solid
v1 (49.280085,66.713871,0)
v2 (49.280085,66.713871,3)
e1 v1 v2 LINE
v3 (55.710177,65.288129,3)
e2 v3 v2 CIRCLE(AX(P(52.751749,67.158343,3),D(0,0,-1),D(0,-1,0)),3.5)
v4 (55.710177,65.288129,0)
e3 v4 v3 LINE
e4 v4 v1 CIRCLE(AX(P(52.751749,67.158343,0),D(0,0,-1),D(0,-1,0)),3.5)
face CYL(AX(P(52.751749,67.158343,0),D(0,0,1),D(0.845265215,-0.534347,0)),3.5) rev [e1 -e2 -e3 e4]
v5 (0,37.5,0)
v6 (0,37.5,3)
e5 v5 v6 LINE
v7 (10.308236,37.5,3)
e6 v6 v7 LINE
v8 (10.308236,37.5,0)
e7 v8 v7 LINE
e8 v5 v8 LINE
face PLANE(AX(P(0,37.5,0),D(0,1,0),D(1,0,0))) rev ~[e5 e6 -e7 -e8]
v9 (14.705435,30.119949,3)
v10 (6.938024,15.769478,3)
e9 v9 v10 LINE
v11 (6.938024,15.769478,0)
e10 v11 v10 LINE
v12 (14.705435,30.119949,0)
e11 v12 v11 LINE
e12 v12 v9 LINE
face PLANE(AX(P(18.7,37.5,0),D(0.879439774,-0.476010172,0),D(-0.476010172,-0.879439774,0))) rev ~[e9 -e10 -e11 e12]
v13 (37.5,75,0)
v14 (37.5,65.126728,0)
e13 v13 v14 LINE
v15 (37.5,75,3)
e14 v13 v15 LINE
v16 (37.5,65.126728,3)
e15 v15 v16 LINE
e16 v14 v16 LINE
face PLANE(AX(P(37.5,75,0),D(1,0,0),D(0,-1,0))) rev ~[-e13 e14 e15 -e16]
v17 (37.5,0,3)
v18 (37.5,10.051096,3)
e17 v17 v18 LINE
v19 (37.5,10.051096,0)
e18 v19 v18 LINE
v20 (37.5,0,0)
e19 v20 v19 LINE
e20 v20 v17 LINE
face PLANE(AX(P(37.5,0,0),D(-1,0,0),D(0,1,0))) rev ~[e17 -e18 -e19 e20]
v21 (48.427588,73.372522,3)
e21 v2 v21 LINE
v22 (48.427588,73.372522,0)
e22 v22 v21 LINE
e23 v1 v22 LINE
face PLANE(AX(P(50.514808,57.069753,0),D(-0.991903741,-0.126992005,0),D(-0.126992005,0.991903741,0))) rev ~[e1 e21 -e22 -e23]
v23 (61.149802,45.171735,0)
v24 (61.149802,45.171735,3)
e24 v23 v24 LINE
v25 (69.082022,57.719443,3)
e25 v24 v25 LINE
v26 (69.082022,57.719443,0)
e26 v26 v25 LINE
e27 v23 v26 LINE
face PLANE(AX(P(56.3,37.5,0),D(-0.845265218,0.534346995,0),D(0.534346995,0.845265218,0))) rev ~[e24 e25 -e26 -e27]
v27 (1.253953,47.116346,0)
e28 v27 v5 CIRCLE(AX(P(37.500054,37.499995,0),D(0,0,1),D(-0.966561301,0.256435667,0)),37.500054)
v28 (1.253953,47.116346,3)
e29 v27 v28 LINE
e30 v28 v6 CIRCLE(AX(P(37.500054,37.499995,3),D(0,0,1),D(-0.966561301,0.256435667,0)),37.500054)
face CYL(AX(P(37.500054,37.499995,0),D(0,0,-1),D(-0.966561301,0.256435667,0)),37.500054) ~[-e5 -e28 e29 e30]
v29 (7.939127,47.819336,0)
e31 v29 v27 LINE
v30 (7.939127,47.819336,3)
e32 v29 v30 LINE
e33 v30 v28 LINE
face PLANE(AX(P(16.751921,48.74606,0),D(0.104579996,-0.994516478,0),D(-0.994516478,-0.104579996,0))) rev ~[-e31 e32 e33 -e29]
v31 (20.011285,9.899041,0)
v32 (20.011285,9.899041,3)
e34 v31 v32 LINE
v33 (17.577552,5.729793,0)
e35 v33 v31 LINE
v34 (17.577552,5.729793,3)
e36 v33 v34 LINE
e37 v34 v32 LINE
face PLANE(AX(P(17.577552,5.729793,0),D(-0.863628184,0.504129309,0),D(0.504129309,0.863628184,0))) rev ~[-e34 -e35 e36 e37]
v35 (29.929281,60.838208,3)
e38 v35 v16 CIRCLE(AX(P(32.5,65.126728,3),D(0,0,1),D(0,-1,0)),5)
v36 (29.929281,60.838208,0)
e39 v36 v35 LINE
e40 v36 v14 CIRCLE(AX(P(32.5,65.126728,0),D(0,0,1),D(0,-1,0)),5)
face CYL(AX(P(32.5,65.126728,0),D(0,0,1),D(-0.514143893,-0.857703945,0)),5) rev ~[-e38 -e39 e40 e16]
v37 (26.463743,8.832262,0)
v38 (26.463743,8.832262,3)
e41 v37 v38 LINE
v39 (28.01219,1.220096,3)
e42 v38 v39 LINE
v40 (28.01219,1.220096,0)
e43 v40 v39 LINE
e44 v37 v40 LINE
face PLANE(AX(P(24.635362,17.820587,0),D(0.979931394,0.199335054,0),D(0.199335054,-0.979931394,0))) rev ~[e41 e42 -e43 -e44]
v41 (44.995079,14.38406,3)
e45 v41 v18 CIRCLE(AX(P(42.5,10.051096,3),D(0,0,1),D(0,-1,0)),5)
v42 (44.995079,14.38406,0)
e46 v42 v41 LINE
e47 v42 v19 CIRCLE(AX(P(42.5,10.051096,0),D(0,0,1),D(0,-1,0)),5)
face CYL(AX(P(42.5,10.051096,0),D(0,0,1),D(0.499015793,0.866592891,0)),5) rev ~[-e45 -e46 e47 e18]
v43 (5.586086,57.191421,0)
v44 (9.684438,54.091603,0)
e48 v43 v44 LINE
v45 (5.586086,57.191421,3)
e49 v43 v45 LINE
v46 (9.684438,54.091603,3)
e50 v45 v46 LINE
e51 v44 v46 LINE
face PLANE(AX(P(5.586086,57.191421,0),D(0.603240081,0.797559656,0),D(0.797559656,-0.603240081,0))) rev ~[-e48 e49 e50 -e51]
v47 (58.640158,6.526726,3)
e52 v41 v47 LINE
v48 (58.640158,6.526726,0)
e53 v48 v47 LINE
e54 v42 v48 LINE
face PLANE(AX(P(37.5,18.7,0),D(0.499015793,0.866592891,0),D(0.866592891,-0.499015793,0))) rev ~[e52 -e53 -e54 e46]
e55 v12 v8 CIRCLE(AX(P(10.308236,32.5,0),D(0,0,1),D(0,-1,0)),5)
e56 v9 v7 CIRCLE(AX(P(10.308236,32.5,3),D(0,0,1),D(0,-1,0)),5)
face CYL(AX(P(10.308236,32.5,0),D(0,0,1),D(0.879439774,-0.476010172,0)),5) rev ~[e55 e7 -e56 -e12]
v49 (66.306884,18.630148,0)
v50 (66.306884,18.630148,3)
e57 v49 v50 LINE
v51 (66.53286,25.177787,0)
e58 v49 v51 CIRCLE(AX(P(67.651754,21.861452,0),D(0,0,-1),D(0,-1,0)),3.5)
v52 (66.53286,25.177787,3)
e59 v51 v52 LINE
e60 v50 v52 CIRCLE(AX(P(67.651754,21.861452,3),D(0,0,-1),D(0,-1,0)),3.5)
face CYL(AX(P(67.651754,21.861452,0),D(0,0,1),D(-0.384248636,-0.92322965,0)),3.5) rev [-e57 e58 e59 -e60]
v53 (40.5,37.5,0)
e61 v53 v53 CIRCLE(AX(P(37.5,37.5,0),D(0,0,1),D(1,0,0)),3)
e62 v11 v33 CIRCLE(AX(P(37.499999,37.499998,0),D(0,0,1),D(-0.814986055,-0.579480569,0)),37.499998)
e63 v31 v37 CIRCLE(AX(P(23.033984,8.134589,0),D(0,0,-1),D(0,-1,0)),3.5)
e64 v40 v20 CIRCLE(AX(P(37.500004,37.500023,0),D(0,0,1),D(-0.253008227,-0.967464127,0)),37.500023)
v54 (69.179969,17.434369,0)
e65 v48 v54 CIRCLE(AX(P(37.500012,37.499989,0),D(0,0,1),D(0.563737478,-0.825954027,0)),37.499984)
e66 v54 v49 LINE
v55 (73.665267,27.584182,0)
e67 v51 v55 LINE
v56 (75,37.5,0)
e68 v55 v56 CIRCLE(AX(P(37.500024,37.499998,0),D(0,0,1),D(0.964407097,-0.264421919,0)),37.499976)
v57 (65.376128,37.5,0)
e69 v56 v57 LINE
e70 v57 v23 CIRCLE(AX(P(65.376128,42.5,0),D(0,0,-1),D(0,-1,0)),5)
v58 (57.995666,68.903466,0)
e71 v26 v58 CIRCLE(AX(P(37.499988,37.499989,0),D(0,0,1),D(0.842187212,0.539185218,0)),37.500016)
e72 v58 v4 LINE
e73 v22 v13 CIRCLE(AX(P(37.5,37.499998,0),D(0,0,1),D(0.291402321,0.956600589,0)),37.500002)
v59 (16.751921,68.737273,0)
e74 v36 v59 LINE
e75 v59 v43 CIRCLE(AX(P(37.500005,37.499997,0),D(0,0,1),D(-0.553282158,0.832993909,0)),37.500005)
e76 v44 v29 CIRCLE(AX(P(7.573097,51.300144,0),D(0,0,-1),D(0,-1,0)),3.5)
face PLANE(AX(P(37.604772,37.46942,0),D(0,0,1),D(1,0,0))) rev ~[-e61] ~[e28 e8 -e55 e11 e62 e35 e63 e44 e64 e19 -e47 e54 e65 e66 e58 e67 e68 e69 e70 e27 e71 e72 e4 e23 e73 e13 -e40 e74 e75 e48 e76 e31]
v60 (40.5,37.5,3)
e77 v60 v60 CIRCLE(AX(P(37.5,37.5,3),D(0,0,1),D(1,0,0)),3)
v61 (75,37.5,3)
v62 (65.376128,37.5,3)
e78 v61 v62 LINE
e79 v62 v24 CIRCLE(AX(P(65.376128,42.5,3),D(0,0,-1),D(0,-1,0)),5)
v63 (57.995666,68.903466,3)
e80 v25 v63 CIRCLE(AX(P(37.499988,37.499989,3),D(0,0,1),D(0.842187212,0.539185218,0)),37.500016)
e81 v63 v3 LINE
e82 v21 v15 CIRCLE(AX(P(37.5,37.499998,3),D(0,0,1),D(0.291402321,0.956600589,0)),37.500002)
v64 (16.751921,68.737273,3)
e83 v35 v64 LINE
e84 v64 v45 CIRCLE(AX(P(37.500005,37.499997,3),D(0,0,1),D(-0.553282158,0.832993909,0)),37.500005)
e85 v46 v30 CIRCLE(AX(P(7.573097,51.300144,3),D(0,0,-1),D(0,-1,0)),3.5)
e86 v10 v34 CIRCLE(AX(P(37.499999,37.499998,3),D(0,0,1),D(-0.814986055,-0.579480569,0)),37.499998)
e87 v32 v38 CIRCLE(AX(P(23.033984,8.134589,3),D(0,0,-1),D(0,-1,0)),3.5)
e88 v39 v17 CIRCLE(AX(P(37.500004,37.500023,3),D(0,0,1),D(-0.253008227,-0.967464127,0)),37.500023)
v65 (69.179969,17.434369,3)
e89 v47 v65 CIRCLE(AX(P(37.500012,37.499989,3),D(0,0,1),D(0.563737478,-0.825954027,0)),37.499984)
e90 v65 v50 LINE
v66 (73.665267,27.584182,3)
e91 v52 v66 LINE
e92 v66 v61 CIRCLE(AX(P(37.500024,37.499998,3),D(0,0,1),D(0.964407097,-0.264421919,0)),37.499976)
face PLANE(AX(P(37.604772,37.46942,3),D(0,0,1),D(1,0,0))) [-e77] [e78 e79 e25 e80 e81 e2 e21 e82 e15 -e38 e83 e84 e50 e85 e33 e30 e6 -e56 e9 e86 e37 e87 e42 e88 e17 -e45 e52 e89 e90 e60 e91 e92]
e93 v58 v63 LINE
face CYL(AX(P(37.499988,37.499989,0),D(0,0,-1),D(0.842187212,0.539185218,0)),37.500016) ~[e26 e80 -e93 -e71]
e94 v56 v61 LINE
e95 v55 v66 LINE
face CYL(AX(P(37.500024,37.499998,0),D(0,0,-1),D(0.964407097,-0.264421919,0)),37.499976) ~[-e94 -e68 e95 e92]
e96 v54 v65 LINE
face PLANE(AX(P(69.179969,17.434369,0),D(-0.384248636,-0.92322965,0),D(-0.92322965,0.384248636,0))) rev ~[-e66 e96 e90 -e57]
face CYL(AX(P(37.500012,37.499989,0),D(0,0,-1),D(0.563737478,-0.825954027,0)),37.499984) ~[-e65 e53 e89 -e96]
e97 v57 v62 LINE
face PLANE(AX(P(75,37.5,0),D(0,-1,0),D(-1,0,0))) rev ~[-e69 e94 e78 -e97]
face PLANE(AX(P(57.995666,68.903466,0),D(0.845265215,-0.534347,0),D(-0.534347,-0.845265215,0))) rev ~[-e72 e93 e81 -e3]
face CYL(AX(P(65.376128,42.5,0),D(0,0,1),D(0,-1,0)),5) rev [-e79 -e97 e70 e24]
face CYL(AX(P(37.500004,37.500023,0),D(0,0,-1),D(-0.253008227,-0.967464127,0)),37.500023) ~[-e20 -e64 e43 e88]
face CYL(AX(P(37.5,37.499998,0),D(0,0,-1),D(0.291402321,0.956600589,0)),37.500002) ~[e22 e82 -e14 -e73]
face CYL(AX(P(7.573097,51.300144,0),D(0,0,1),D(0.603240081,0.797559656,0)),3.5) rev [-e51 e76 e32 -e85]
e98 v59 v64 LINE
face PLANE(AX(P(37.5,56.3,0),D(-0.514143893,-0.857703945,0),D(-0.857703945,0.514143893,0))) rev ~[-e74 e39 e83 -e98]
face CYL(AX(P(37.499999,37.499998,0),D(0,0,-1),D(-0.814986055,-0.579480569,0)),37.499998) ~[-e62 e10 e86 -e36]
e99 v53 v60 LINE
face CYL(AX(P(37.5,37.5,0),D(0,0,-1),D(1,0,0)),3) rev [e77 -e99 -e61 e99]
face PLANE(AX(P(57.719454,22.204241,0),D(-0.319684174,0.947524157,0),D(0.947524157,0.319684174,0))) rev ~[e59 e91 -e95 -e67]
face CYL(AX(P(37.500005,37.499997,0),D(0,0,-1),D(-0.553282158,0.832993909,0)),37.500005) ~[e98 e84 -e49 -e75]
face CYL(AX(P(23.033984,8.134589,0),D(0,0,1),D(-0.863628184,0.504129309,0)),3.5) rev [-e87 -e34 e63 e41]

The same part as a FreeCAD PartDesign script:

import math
import FreeCAD as App
import Part
import Sketcher
Q = App.Units.Quantity


def edges_at(feature, points):
    """Names of the edges that pass closest to the given points."""
    edges = feature.Shape.Edges
    near = lambda p: min(range(len(edges)), key=lambda i: edges[i].distToShape(Part.Vertex(*p))[0])
    return sorted({f"Edge{near(p) + 1}" for p in points})

doc = App.newDocument("Part")
body = doc.addObject("PartDesign::Body", "Body")

# Sketch on XY plane
sketch1 = doc.addObject("Sketcher::SketchObject", "Sketch")
body.addObject(sketch1)
sketch1.AttachmentSupport = (doc.XY_Plane, [""])
sketch1.MapMode = "FlatFace"
sketch1.addGeometry([
    Part.ArcOfCircle(Part.Circle(App.Vector(37.5, 37.5, 0), App.Vector(0, 0, 1), 37.5), math.radians(-15.33), math.radians(0)),  # 0
    Part.LineSegment(App.Vector(75, 37.5, 0), App.Vector(56.3, 37.5, 0)),  # 1
    Part.LineSegment(App.Vector(56.3, 37.5, 0), App.Vector(69.1, 57.7, 0)),  # 2
    Part.ArcOfCircle(Part.Circle(App.Vector(37.5, 37.5, 0), App.Vector(0, 0, 1), 37.5), math.radians(33), math.radians(57)),  # 3
    Part.LineSegment(App.Vector(58, 68.9, 0), App.Vector(50.5, 57.1, 0)),  # 4
    Part.LineSegment(App.Vector(50.5, 57.1, 0), App.Vector(48.4, 73.4, 0)),  # 5
    Part.ArcOfCircle(Part.Circle(App.Vector(37.5, 37.5, 0), App.Vector(0, 0, 1), 37.5), math.radians(73.06), math.radians(90)),  # 6
    Part.LineSegment(App.Vector(37.5, 75, 0), App.Vector(37.5, 56.3, 0)),  # 7
    Part.LineSegment(App.Vector(37.5, 56.3, 0), App.Vector(16.8, 68.7, 0)),  # 8
    Part.ArcOfCircle(Part.Circle(App.Vector(37.5, 37.5, 0), App.Vector(0, 0, 1), 37.5), math.radians(124), math.radians(148)),  # 9
    Part.LineSegment(App.Vector(5.6, 57.2, 0), App.Vector(16.8, 48.7, 0)),  # 10
    Part.LineSegment(App.Vector(16.8, 48.7, 0), App.Vector(1.3, 47.1, 0)),  # 11
    Part.ArcOfCircle(Part.Circle(App.Vector(37.5, 37.5, 0), App.Vector(0, 0, 1), 37.5), math.radians(165.14), math.radians(180)),  # 12
    Part.LineSegment(App.Vector(0, 37.5, 0), App.Vector(18.7, 37.5, 0)),  # 13
    Part.LineSegment(App.Vector(18.7, 37.5, 0), App.Vector(6.9, 15.8, 0)),  # 14
    Part.ArcOfCircle(Part.Circle(App.Vector(37.5, 37.5, 0), App.Vector(0, 0, 1), 37.5), math.radians(-145), math.radians(-122)),  # 15
    Part.LineSegment(App.Vector(17.6, 5.7, 0), App.Vector(24.6, 17.8, 0)),  # 16
    Part.LineSegment(App.Vector(24.6, 17.8, 0), App.Vector(28, 1.2, 0)),  # 17
    Part.ArcOfCircle(Part.Circle(App.Vector(37.5, 37.5, 0), App.Vector(0, 0, 1), 37.5), math.radians(-104.66), math.radians(-90)),  # 18
    Part.LineSegment(App.Vector(37.5, 0, 0), App.Vector(37.5, 18.7, 0)),  # 19
    Part.LineSegment(App.Vector(37.5, 18.7, 0), App.Vector(58.6, 6.5, 0)),  # 20
    Part.ArcOfCircle(Part.Circle(App.Vector(37.5, 37.5, 0), App.Vector(0, 0, 1), 37.5), math.radians(-56), math.radians(-32)),  # 21
    Part.LineSegment(App.Vector(69.2, 17.4, 0), App.Vector(57.7, 22.2, 0)),  # 22
    Part.LineSegment(App.Vector(57.7, 22.2, 0), App.Vector(73.7, 27.6, 0)),  # 23
    Part.Circle(App.Vector(37.5, 37.5, 0), App.Vector(0, 0, 1), 3),  # 24
], False)
sketch1.addConstraint([
    Sketcher.Constraint("Coincident", 0, 2, 1, 1),
    Sketcher.Constraint("Coincident", 1, 2, 2, 1),
    Sketcher.Constraint("Coincident", 2, 2, 3, 1),
    Sketcher.Constraint("Coincident", 3, 2, 4, 1),
    Sketcher.Constraint("Coincident", 4, 2, 5, 1),
    Sketcher.Constraint("Coincident", 5, 2, 6, 1),
    Sketcher.Constraint("Coincident", 6, 2, 7, 1),
    Sketcher.Constraint("Coincident", 7, 2, 8, 1),
    Sketcher.Constraint("Coincident", 8, 2, 9, 1),
    Sketcher.Constraint("Coincident", 9, 2, 10, 1),
    Sketcher.Constraint("Coincident", 10, 2, 11, 1),
    Sketcher.Constraint("Coincident", 11, 2, 12, 1),
    Sketcher.Constraint("Coincident", 12, 2, 13, 1),
    Sketcher.Constraint("Coincident", 13, 2, 14, 1),
    Sketcher.Constraint("Coincident", 14, 2, 15, 1),
    Sketcher.Constraint("Coincident", 15, 2, 16, 1),
    Sketcher.Constraint("Coincident", 16, 2, 17, 1),
    Sketcher.Constraint("Coincident", 17, 2, 18, 1),
    Sketcher.Constraint("Coincident", 18, 2, 19, 1),
    Sketcher.Constraint("Coincident", 19, 2, 20, 1),
    Sketcher.Constraint("Coincident", 20, 2, 21, 1),
    Sketcher.Constraint("Coincident", 21, 2, 22, 1),
    Sketcher.Constraint("Coincident", 22, 2, 23, 1),
    Sketcher.Constraint("Coincident", 23, 2, 0, 1),
    Sketcher.Constraint("Horizontal", 1),
    Sketcher.Constraint("Vertical", 7),
    Sketcher.Constraint("Horizontal", 13),
    Sketcher.Constraint("Vertical", 19),
    Sketcher.Constraint("Coincident", 9, 3, 6, 3),
    Sketcher.Constraint("Coincident", 15, 3, 6, 3),
    Sketcher.Constraint("Coincident", 24, 3, 6, 3),
    Sketcher.Constraint("PointOnObject", 12, 2, -2),
    Sketcher.Constraint("PointOnObject", 18, 2, -1),
    Sketcher.Constraint("Parallel", 2, 4),
    Sketcher.Constraint("Horizontal", 0, 3, 6, 3),
    Sketcher.Constraint("Horizontal", 3, 3, 21, 3),
    Sketcher.Constraint("Horizontal", 24, 3, 0, 2),
    Sketcher.Constraint("Horizontal", 1, 2, 12, 2),
    Sketcher.Constraint("Vertical", 9, 3, 18, 3),
    Sketcher.Constraint("Vertical", 24, 3, 6, 2),
    Sketcher.Constraint("Vertical", 8, 2, 10, 2),
    Sketcher.Constraint("Vertical", 7, 2, 18, 2),
    Sketcher.Constraint("Equal", 1, 13),
    Sketcher.Constraint("Equal", 13, 7),
    Sketcher.Constraint("Equal", 7, 19),
    Sketcher.Constraint("Equal", 4, 10),
    Sketcher.Constraint("Equal", 10, 16),
    Sketcher.Constraint("Diameter", 24, Q("6 mm")),
    Sketcher.Constraint("Distance", 4, Q("14 mm")),
    Sketcher.Constraint("DistanceX", 1, 2, 1, 1, Q("18.7 mm")),
    Sketcher.Constraint("DistanceX", -1, 1, 0, 2, Q("75 mm")),
    Sketcher.Constraint("DistanceY", -1, 1, 6, 2, Q("75 mm")),
    Sketcher.Constraint("DistanceX", -1, 1, 6, 3, Q("37.5 mm")),
    Sketcher.Constraint("DistanceY", -1, 1, 15, 3, Q("37.499998 mm")),
    Sketcher.Constraint("Radius", 0, Q("37.499976 mm")),
    Sketcher.Constraint("Radius", 3, Q("37.500016 mm")),
    Sketcher.Constraint("Radius", 9, Q("37.500005 mm")),
    Sketcher.Constraint("Radius", 12, Q("37.500054 mm")),
    Sketcher.Constraint("Radius", 15, Q("37.499998 mm")),
    Sketcher.Constraint("Radius", 18, Q("37.500023 mm")),
    Sketcher.Constraint("Radius", 21, Q("37.499984 mm")),
    Sketcher.Constraint("DistanceY", 18, 3, 5, 2, Q("35.872499 mm")),
    Sketcher.Constraint("DistanceX", 9, 2, 3, 3, Q("31.913902 mm")),
    Sketcher.Constraint("DistanceY", 16, 2, 3, 3, Q("19.679402 mm")),
    Sketcher.Constraint("Distance", 11, Q("15.58342 mm")),
    Sketcher.Constraint("DistanceY", -1, 1, 3, 3, Q("37.499989 mm")),
    Sketcher.Constraint("DistanceX", -1, 1, 21, 3, Q("37.500012 mm")),
    Sketcher.Constraint("DistanceX", -1, 1, 2, 2, Q("69.082022 mm")),
    Sketcher.Constraint("DistanceX", -1, 1, 4, 2, Q("50.514808 mm")),
    Sketcher.Constraint("DistanceX", -1, 1, 8, 2, Q("16.751921 mm")),
    Sketcher.Constraint("DistanceY", -1, 1, 9, 2, Q("57.191421 mm")),
    Sketcher.Constraint("DistanceX", -1, 1, 15, 2, Q("17.577552 mm")),
    Sketcher.Constraint("DistanceX", -1, 1, 17, 2, Q("28.01219 mm")),
    Sketcher.Constraint("DistanceX", -1, 1, 21, 2, Q("69.179969 mm")),
    Sketcher.Constraint("DistanceY", -1, 1, 22, 2, Q("22.204241 mm")),
    Sketcher.Constraint("DistanceY", -1, 1, 23, 2, Q("27.584182 mm")),
    Sketcher.Constraint("DistanceY", 12, 3, 2, 2, Q("20.219448 mm")),
    Sketcher.Constraint("DistanceX", 11, 2, 14, 2, Q("5.684071 mm")),
    Sketcher.Constraint("DistanceX", 1, 2, 20, 2, Q("2.340158 mm")),
    Sketcher.Constraint("Distance", 22, Q("12.413504 mm")),
])
pad1 = doc.addObject("PartDesign::Pad", "Pad")
body.addObject(pad1)
pad1.Profile = sketch1
pad1.Length = 3
doc.recompute()

fillet = doc.addObject("PartDesign::Fillet", "Fillet")
body.addObject(fillet)
fillet.Base = (pad1, edges_at(pad1, [(37.5, 18.7, 1.5)]))
fillet.Radius = 5
doc.recompute()

fillet2 = doc.addObject("PartDesign::Fillet", "Fillet001")
body.addObject(fillet2)
fillet2.Base = (fillet, edges_at(fillet, [(56.3, 37.5, 1.5)]))
fillet2.Radius = 5
doc.recompute()

fillet3 = doc.addObject("PartDesign::Fillet", "Fillet002")
body.addObject(fillet3)
fillet3.Base = (fillet2, edges_at(fillet2, [(18.7, 37.5, 1.5)]))
fillet3.Radius = 5
doc.recompute()

fillet4 = doc.addObject("PartDesign::Fillet", "Fillet003")
body.addObject(fillet4)
fillet4.Base = (fillet3, edges_at(fillet3, [(37.5, 56.3, 1.5)]))
fillet4.Radius = 5
doc.recompute()

fillet5 = doc.addObject("PartDesign::Fillet", "Fillet004")
body.addObject(fillet5)
fillet5.Base = (fillet4, edges_at(fillet4, [(24.635, 17.821, 1.5)]))
fillet5.Radius = 3.5
doc.recompute()

fillet6 = doc.addObject("PartDesign::Fillet", "Fillet005")
body.addObject(fillet6)
fillet6.Base = (fillet5, edges_at(fillet5, [(57.719, 22.204, 1.5)]))
fillet6.Radius = 3.5
doc.recompute()

fillet7 = doc.addObject("PartDesign::Fillet", "Fillet006")
body.addObject(fillet7)
fillet7.Base = (fillet6, edges_at(fillet6, [(50.515, 57.07, 1.5)]))
fillet7.Radius = 3.5
doc.recompute()

fillet8 = doc.addObject("PartDesign::Fillet", "Fillet007")
body.addObject(fillet8)
fillet8.Base = (fillet7, edges_at(fillet7, [(16.752, 48.746, 1.5)]))
fillet8.Radius = 3.5

doc.recompute()
